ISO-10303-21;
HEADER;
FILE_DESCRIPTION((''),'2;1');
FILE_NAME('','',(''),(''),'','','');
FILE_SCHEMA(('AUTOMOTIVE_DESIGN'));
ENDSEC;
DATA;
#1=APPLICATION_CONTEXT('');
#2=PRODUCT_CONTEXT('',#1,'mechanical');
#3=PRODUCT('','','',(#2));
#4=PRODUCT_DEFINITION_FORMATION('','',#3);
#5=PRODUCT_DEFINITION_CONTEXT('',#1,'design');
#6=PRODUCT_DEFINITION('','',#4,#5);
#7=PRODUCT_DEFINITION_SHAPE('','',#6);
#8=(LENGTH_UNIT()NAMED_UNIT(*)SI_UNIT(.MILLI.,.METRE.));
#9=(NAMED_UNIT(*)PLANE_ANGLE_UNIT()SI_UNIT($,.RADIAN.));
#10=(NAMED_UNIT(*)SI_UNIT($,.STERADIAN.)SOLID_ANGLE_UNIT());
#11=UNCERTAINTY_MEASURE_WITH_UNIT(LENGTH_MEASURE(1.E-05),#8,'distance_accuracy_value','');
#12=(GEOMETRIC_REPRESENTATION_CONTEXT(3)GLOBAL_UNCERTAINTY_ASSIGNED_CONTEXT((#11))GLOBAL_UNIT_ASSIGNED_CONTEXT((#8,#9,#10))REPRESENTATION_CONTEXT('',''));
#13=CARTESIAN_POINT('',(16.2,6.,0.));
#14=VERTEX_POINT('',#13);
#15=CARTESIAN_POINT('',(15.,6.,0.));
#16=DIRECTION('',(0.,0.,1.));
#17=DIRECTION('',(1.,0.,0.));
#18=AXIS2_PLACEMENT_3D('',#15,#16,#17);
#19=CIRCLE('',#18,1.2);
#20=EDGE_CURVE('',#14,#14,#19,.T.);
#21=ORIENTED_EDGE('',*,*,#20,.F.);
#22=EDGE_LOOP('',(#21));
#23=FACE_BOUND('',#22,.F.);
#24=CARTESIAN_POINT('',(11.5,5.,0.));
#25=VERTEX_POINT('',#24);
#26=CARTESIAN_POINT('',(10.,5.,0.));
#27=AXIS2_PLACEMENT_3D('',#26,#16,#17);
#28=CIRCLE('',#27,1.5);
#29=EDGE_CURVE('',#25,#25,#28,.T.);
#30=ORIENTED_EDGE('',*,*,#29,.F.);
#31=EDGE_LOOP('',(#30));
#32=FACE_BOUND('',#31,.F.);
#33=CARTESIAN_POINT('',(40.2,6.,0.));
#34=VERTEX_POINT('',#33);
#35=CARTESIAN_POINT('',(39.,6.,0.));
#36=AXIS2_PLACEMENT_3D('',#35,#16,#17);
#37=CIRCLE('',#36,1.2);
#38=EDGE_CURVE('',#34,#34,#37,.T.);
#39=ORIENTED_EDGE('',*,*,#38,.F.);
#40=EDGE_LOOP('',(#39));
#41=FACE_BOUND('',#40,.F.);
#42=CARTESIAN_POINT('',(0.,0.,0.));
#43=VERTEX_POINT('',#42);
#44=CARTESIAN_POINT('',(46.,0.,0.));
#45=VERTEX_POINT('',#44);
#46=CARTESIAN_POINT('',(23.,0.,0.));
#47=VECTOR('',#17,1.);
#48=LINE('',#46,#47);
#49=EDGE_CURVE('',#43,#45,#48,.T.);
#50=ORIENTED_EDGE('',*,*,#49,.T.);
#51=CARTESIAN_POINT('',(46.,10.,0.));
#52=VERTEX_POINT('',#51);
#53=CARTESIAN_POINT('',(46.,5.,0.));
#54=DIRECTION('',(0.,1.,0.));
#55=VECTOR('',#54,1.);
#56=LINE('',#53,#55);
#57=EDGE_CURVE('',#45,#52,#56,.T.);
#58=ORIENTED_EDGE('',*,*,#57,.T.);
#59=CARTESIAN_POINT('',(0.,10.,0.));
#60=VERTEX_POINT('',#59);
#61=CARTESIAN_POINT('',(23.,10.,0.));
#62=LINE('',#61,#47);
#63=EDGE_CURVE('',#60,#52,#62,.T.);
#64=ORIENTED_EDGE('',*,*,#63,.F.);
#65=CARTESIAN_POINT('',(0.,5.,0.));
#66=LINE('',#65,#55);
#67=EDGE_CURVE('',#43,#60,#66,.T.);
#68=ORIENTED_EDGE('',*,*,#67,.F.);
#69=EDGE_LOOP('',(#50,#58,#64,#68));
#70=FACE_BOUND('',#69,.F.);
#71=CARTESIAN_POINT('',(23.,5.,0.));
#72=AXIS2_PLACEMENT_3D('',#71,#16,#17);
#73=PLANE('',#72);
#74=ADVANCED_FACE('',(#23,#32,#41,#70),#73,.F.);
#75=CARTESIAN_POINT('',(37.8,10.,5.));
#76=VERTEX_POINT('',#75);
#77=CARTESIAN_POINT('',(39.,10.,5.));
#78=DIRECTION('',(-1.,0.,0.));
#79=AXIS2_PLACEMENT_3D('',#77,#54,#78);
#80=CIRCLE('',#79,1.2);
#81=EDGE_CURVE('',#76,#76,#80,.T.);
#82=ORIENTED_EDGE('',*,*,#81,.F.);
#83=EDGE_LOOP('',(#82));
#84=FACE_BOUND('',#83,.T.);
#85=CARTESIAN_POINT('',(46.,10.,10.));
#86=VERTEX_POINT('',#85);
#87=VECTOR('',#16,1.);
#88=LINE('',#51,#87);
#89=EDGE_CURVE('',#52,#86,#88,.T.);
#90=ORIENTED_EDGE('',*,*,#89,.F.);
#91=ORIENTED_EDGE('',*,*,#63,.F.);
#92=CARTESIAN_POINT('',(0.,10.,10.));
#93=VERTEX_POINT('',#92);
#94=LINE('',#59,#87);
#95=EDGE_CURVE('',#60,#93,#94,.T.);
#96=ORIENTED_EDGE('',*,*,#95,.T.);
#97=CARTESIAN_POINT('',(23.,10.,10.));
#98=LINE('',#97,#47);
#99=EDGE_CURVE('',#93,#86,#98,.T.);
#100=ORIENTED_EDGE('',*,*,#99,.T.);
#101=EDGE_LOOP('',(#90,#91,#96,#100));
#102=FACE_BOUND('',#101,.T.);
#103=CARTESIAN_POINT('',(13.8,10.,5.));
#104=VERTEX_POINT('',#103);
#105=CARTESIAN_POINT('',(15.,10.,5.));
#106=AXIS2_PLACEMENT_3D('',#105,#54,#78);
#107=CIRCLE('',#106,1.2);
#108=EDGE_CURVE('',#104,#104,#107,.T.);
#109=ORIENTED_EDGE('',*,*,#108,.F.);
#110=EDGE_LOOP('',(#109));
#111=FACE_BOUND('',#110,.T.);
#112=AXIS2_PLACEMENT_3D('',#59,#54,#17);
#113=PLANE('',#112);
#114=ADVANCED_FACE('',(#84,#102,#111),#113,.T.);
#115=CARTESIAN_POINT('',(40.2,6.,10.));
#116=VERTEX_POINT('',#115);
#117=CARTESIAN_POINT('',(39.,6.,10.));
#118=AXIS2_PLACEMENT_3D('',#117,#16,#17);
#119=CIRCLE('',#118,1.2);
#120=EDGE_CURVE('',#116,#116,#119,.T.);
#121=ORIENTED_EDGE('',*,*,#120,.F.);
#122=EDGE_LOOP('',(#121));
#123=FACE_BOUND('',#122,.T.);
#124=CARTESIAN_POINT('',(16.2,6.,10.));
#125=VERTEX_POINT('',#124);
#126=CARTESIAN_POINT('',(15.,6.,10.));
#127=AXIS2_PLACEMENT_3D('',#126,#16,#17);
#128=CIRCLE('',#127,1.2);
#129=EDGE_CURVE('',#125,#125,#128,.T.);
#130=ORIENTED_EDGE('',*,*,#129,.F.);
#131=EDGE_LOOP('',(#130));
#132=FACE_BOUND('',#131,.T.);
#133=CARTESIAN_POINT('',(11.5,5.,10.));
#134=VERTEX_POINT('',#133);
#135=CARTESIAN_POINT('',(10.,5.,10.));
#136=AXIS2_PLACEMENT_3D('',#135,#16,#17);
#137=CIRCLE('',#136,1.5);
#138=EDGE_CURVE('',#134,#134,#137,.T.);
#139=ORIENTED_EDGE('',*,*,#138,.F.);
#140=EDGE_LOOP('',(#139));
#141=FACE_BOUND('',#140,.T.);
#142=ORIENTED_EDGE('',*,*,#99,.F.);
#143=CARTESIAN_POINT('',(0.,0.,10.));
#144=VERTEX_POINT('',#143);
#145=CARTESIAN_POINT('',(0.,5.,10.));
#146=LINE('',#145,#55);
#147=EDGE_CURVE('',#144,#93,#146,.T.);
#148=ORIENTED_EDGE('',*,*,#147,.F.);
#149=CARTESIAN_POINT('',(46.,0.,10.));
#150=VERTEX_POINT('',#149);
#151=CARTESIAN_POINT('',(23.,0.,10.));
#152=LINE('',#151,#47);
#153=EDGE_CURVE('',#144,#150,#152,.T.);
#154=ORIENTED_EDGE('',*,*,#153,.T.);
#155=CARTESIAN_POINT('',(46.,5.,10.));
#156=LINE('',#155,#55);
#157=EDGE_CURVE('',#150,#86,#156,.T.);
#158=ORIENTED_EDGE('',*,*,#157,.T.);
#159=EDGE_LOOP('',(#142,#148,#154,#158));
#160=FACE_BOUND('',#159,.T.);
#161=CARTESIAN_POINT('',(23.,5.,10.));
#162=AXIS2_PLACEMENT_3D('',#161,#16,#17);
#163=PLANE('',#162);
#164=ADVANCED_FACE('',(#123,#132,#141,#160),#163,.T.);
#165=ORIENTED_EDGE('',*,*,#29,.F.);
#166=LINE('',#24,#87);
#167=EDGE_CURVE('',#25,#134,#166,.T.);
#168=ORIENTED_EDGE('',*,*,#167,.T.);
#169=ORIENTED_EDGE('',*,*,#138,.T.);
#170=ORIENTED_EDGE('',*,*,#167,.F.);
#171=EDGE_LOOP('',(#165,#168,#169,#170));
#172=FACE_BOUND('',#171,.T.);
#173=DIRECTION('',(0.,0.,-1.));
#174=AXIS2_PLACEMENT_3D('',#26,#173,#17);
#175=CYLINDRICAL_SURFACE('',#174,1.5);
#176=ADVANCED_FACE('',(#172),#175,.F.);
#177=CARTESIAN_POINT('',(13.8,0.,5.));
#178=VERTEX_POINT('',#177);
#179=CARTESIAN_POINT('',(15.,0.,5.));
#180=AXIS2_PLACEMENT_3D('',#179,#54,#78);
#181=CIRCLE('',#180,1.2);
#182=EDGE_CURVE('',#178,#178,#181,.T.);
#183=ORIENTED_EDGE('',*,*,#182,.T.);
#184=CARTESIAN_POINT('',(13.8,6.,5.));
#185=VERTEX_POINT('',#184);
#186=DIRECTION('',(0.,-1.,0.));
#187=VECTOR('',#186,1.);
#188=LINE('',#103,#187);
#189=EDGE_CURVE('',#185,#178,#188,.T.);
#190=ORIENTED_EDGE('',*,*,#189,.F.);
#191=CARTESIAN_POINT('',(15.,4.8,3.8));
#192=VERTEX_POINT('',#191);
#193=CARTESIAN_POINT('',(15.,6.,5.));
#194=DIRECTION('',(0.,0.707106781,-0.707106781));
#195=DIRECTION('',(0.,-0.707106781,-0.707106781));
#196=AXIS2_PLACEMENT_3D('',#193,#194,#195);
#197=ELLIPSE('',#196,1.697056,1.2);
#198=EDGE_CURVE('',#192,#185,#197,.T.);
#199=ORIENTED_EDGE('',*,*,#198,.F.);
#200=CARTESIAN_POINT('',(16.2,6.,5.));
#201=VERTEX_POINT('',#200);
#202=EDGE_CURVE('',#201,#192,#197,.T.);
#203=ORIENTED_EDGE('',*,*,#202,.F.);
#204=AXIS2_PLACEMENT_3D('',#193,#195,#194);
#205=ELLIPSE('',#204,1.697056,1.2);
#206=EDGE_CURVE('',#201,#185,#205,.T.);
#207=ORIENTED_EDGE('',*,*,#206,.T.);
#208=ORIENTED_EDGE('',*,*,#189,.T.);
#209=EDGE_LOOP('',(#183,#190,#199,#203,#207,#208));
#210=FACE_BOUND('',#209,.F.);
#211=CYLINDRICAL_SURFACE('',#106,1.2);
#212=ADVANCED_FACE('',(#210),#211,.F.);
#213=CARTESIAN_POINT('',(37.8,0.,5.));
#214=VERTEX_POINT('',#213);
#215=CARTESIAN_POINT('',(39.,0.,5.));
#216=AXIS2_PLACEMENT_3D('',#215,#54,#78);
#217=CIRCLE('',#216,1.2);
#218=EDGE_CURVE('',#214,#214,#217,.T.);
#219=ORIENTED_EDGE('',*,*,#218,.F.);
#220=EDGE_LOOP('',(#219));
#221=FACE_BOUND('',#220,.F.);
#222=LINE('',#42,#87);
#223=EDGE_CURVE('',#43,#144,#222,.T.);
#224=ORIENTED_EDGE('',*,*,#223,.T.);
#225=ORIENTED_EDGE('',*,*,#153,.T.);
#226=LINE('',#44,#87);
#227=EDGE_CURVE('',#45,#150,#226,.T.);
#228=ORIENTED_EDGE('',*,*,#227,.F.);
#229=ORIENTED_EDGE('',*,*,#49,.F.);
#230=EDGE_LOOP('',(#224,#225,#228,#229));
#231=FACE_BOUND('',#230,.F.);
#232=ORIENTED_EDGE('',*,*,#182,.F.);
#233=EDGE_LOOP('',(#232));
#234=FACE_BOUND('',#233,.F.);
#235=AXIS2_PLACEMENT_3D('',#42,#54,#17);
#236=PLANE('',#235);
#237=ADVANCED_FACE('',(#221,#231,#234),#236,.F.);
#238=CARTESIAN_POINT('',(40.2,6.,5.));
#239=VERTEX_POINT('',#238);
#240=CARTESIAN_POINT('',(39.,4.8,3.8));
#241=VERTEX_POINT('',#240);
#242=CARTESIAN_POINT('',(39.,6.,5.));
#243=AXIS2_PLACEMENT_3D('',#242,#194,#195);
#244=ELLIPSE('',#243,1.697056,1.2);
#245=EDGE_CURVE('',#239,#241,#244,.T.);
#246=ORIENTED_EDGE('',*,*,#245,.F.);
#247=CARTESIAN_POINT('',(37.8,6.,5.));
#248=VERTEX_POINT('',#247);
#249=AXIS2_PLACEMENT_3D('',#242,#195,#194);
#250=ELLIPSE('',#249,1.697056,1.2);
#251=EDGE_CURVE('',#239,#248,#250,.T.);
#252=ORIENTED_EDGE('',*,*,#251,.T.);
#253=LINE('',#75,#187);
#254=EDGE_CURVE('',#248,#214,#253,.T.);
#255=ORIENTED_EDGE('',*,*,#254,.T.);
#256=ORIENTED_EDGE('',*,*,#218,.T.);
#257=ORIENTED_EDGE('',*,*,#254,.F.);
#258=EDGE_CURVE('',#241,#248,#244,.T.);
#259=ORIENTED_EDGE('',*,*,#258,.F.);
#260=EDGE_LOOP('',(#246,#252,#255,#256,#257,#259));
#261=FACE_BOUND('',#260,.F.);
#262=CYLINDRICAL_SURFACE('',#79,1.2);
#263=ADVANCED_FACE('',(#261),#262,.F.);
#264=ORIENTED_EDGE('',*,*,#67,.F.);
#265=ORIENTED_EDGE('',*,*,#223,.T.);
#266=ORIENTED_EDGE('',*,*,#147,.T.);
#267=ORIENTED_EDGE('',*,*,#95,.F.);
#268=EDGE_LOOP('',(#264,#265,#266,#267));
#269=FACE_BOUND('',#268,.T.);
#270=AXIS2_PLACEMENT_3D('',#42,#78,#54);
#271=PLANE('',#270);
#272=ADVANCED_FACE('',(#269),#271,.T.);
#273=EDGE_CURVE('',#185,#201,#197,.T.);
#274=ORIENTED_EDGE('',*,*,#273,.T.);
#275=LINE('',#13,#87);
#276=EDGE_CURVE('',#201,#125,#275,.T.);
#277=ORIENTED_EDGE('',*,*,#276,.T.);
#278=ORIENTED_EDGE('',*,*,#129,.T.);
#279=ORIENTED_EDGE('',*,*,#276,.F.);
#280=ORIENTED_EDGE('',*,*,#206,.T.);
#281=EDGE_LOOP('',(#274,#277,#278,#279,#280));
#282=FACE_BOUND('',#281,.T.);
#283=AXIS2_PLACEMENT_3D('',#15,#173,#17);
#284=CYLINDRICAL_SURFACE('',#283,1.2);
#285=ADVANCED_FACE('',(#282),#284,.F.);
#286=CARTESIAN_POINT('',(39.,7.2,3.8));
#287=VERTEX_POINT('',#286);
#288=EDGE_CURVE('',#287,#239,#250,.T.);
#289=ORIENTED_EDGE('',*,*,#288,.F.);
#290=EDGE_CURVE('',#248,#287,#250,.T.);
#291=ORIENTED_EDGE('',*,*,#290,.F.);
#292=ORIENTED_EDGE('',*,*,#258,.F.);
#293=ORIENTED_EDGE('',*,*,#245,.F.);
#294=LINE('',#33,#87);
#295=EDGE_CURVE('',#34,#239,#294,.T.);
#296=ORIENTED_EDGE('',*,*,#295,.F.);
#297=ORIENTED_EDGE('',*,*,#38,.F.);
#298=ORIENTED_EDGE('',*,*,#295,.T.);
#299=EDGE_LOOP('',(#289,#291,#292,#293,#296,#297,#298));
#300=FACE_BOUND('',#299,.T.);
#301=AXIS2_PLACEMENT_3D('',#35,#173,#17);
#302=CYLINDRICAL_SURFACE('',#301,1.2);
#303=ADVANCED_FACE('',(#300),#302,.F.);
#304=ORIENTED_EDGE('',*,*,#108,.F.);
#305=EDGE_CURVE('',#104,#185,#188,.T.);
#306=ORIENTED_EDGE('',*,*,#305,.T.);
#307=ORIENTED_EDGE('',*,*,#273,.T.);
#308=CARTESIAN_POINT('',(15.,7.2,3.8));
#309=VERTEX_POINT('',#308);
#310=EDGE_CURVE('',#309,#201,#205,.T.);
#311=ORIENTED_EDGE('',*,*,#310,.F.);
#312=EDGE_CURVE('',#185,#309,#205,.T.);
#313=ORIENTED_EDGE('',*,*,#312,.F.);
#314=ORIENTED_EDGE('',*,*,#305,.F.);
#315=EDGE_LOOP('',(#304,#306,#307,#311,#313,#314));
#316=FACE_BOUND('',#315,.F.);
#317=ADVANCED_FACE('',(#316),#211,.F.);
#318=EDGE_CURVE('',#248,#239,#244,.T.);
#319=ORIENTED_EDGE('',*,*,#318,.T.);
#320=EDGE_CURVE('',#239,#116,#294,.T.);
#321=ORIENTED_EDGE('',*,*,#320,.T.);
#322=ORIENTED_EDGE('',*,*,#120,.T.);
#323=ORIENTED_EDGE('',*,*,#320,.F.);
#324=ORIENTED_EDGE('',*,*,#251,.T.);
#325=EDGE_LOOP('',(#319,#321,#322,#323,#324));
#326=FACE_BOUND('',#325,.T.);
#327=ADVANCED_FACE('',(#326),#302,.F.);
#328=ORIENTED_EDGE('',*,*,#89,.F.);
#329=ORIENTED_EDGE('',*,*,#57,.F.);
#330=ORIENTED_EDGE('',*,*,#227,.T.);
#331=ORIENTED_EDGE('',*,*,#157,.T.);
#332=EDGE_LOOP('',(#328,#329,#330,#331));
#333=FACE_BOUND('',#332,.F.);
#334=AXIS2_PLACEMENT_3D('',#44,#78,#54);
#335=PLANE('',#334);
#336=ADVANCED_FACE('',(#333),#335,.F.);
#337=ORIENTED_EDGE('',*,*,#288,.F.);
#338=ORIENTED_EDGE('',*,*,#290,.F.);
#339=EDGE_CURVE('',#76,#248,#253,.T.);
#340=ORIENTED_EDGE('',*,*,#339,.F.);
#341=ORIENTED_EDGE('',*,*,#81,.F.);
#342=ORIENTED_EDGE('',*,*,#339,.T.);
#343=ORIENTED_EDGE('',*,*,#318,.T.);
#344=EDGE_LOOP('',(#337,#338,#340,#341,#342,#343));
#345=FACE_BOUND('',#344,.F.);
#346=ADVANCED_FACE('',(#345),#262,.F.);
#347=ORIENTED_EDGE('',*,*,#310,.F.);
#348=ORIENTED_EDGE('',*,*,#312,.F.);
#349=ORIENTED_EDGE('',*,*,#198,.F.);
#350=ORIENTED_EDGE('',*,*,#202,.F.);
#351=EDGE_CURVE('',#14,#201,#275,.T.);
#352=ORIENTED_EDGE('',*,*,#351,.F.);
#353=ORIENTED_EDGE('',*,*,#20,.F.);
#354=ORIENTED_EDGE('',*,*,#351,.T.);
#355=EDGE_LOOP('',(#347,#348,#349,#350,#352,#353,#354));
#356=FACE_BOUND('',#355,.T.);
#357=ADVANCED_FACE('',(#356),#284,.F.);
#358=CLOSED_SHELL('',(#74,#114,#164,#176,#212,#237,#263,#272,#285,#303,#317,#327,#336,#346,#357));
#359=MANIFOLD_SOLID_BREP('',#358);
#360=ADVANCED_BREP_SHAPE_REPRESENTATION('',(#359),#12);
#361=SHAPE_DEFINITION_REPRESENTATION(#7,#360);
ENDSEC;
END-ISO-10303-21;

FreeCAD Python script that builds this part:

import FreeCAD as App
import Part
import Sketcher

V = App.Vector


def add_polygon(sketch, points):
    """Adds a closed chain of lines whose ends are joined by coincident constraints."""
    first, n = sketch.GeometryCount, len(points)
    for a, b in zip(points, points[1:] + points[:1]):
        sketch.addGeometry(Part.LineSegment(App.Vector(*a, 0), App.Vector(*b, 0)), False)
    for i in range(n):
        sketch.addConstraint(Sketcher.Constraint("Coincident", first + i, 2, first + (i + 1) % n, 1))

doc = App.newDocument("Part")
body = doc.addObject("PartDesign::Body", "Body")

# Sketch on XY plane
sketch1 = body.newObject("Sketcher::SketchObject", "Sketch")
sketch1.AttachmentSupport = (doc.getObject("XY_Plane"), [""])
sketch1.MapMode = "FlatFace"
add_polygon(sketch1, [(0, 10), (0, 0), (46, 0), (46, 10)])  # lines 0-3
sketch1.addGeometry(Part.Circle(V(10, 5, 0), V(0, 0, 1), 1.5), False)  # 4
sketch1.addGeometry(Part.Circle(V(15, 6, 0), V(0, 0, 1), 1.2), False)  # 5
sketch1.addGeometry(Part.Circle(V(39, 6, 0), V(0, 0, 1), 1.2), False)  # 6
sketch1.addConstraint(Sketcher.Constraint("Vertical", 0))
sketch1.addConstraint(Sketcher.Constraint("Horizontal", 1))
sketch1.addConstraint(Sketcher.Constraint("Vertical", 2))
sketch1.addConstraint(Sketcher.Constraint("Horizontal", 3))
sketch1.addConstraint(Sketcher.Constraint("Coincident", 0, 2, -1, 1))
sketch1.addConstraint(Sketcher.Constraint("Equal", 5, 6))
sketch1.addConstraint(Sketcher.Constraint("Horizontal", 5, 3, 6, 3))
sketch1.addConstraint(Sketcher.Constraint("Diameter", 4, 3.0))
sketch1.addConstraint(Sketcher.Constraint("Diameter", 5, 2.4))
sketch1.addConstraint(Sketcher.Constraint("DistanceX", 1, 1, 1, 2, 46.0))
sketch1.addConstraint(Sketcher.Constraint("DistanceY", 0, 2, 0, 1, 10.0))
sketch1.addConstraint(Sketcher.Constraint("DistanceX", -1, 1, 4, 3, 10.0))
sketch1.addConstraint(Sketcher.Constraint("DistanceY", -1, 1, 4, 3, 5.0))
sketch1.addConstraint(Sketcher.Constraint("DistanceX", -1, 1, 5, 3, 15.0))
sketch1.addConstraint(Sketcher.Constraint("DistanceY", -1, 1, 5, 3, 6.0))
sketch1.addConstraint(Sketcher.Constraint("DistanceX", -1, 1, 6, 3, 39.0))
pad1 = body.newObject("PartDesign::Pad", "Pad")
pad1.Profile = sketch1
pad1.Length = 10

# Sketch on XZ plane
sketch2 = body.newObject("Sketcher::SketchObject", "Sketch001")
sketch2.AttachmentSupport = (doc.getObject("XZ_Plane"), [""])
sketch2.MapMode = "FlatFace"
sketch2.AttachmentOffset = App.Placement(V(0, 0, -10), App.Rotation())
sketch2.addGeometry(Part.Circle(V(15, 5, 0), V(0, 0, 1), 1.2), False)
sketch2.addGeometry(Part.Circle(V(39, 5, 0), V(0, 0, 1), 1.2), False)
sketch2.addConstraint(Sketcher.Constraint("Equal", 0, 1))
sketch2.addConstraint(Sketcher.Constraint("Horizontal", 0, 3, 1, 3))
sketch2.addConstraint(Sketcher.Constraint("Diameter", 0, 2.4))
sketch2.addConstraint(Sketcher.Constraint("DistanceX", -1, 1, 0, 3, 15.0))
sketch2.addConstraint(Sketcher.Constraint("DistanceY", -1, 1, 0, 3, 5.0))
sketch2.addConstraint(Sketcher.Constraint("DistanceX", -1, 1, 1, 3, 39.0))
pocket1 = body.newObject("PartDesign::Pocket", "Pocket")
pocket1.Profile = sketch2
pocket1.Type = "ThroughAll"
pocket1.Reversed = True

doc.recompute()
